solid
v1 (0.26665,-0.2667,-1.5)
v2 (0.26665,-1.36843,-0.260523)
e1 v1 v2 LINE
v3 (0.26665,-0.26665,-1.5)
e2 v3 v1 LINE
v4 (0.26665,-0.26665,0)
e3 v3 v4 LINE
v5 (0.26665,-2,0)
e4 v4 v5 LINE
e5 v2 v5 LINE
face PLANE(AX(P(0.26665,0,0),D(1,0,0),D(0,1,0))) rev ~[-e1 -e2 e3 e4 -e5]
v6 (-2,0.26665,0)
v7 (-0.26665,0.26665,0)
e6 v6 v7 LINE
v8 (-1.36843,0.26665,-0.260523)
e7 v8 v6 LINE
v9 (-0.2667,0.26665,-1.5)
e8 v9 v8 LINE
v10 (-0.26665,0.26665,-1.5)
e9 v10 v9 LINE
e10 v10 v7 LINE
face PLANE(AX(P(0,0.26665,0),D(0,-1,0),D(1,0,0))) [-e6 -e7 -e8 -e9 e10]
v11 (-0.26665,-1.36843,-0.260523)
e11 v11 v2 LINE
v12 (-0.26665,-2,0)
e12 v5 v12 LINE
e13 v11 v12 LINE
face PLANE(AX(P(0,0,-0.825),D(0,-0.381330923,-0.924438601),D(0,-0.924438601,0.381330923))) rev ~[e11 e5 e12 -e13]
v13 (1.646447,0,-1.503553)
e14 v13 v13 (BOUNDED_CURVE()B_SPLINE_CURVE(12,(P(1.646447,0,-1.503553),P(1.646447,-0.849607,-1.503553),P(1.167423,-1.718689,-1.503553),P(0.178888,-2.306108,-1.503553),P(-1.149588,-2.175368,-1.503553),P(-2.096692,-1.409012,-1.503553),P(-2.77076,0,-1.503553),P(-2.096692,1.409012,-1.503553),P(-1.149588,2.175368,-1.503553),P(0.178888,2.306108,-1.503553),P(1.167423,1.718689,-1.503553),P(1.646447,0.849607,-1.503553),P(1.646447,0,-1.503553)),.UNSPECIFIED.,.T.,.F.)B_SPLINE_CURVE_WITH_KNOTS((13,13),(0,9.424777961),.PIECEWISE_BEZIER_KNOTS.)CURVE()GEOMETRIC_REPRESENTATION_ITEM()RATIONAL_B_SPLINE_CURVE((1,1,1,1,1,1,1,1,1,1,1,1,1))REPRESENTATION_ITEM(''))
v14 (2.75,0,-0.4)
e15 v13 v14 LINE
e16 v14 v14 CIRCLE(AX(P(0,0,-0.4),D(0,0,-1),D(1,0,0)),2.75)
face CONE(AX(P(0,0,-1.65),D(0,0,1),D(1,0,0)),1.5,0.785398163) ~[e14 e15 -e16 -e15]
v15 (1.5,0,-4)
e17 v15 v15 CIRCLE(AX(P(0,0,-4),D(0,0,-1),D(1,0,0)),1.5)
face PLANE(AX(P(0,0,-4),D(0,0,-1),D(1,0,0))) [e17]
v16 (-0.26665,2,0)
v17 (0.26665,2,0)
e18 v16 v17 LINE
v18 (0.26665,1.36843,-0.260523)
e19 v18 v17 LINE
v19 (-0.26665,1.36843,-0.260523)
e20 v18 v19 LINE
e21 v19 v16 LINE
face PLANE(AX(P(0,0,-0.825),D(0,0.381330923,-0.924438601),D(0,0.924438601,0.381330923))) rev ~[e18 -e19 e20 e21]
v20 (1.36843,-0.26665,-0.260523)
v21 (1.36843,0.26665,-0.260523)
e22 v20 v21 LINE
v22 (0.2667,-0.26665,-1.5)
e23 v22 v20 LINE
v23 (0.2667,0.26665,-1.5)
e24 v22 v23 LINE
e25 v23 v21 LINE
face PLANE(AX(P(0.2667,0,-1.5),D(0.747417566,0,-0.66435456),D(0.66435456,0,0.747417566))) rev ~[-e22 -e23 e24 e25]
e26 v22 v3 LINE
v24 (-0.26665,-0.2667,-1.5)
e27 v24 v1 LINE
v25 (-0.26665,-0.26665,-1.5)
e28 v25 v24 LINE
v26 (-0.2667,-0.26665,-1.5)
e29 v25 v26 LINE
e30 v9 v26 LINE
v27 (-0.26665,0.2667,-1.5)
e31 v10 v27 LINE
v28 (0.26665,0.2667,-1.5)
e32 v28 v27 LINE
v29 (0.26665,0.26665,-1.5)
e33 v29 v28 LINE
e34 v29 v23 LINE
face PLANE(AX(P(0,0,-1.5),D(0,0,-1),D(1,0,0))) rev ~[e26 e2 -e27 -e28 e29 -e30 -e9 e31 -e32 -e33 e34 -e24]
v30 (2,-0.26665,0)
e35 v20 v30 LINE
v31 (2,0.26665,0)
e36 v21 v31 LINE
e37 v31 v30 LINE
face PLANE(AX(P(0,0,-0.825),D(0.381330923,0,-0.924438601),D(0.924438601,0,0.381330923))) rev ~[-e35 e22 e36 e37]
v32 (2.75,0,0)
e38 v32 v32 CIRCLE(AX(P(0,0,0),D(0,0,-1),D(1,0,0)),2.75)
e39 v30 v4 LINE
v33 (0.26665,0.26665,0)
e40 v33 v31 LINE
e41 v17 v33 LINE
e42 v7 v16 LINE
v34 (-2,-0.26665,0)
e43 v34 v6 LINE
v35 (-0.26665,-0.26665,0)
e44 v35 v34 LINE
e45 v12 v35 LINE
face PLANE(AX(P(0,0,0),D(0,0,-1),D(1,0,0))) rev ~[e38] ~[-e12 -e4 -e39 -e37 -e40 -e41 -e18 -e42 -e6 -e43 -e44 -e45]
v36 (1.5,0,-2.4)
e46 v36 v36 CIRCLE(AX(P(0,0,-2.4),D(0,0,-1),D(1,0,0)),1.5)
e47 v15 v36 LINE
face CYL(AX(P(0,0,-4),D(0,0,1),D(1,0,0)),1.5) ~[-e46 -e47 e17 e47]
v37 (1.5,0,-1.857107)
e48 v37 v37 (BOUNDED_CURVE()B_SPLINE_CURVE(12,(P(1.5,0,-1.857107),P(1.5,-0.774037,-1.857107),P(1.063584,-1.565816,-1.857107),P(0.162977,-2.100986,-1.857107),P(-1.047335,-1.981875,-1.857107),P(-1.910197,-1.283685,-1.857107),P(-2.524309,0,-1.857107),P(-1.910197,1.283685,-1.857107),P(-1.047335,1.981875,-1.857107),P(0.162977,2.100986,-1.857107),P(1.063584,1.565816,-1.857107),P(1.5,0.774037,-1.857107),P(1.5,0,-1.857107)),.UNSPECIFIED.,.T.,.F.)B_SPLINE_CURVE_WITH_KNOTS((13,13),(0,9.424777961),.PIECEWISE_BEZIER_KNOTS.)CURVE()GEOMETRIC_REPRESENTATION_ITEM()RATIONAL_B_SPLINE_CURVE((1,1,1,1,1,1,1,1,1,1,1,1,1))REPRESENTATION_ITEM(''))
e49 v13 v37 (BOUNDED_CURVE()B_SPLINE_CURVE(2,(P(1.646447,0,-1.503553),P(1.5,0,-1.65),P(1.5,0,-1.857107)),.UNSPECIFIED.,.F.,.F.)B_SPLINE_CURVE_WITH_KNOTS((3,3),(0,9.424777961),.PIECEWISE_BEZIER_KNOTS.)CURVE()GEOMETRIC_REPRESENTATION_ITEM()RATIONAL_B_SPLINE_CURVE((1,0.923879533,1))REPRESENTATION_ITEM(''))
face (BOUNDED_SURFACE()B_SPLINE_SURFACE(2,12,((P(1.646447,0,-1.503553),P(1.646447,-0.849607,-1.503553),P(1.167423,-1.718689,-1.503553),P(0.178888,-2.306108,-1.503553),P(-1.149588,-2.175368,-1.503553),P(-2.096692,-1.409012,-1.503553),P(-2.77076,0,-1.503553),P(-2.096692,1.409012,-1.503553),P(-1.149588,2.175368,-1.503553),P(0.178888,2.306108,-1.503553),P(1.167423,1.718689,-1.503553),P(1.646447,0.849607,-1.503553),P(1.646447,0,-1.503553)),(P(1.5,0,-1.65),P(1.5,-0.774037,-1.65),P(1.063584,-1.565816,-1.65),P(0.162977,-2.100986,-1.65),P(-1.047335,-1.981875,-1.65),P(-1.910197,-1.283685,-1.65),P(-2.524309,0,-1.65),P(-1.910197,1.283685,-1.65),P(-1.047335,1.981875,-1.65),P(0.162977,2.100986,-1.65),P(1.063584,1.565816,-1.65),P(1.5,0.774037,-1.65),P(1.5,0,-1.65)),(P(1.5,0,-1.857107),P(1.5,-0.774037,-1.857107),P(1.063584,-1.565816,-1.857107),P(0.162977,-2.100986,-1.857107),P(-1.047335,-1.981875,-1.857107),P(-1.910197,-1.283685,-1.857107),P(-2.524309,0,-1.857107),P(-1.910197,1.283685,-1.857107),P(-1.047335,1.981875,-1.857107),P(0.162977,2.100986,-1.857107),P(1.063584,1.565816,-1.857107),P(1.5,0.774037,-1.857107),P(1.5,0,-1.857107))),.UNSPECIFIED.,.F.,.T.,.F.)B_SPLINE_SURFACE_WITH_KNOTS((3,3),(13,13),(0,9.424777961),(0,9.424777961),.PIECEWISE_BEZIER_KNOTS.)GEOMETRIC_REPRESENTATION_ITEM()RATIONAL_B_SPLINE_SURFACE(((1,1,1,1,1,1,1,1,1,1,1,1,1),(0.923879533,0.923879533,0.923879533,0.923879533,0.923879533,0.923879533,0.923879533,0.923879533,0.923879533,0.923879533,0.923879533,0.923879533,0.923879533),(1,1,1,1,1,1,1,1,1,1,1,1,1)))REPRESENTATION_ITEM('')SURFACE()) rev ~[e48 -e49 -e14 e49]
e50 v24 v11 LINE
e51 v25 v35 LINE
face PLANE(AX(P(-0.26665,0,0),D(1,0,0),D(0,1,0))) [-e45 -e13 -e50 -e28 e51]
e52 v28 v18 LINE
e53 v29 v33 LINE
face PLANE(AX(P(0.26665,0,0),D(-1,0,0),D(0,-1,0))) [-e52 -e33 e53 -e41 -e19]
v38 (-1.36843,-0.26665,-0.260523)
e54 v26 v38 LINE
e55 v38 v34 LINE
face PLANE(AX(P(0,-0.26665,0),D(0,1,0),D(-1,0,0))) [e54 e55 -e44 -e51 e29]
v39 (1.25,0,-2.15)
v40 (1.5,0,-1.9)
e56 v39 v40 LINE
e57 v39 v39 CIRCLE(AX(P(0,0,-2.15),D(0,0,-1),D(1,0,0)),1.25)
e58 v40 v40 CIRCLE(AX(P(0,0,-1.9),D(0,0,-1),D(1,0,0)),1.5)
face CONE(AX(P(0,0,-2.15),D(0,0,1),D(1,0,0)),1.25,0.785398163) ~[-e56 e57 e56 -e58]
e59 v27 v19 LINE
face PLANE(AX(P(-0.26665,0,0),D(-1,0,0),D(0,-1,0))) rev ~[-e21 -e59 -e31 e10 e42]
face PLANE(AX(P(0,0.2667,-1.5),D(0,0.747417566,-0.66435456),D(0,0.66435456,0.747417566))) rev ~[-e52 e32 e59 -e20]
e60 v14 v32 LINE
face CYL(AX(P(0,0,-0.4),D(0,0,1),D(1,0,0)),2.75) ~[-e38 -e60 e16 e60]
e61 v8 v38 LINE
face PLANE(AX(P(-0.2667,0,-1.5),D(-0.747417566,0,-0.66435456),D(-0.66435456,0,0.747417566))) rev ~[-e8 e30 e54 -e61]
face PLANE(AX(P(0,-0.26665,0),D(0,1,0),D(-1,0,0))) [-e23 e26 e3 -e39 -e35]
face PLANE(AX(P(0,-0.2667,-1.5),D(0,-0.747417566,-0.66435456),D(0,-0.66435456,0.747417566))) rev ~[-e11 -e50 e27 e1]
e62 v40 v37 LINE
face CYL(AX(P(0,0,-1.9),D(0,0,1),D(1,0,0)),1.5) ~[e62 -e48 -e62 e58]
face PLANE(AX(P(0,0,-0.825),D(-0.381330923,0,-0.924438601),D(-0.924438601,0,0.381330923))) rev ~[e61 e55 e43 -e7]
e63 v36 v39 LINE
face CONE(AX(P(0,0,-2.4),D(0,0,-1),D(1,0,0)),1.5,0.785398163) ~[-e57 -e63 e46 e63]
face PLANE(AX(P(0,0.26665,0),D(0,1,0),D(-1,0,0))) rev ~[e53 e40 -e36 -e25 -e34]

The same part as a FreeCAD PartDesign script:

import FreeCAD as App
import Part
import Sketcher

V = App.Vector
Q = App.Units.Quantity


def edges_at(feature, points):
    """Names of the edges that pass closest to the given points."""
    edges = feature.Shape.Edges
    near = lambda p: min(range(len(edges)), key=lambda i: edges[i].distToShape(Part.Vertex(*p))[0])
    return sorted({f"Edge{near(p) + 1}" for p in points})


def add_polygon(sketch, points):
    """Adds a closed chain of lines whose ends are joined by coincident constraints."""
    first, n = sketch.GeometryCount, len(points)
    for a, b in zip(points, points[1:] + points[:1]):
        sketch.addGeometry(Part.LineSegment(App.Vector(*a, 0), App.Vector(*b, 0)), False)
    for i in range(n):
        sketch.addConstraint(Sketcher.Constraint("Coincident", first + i, 2, first + (i + 1) % n, 1))

doc = App.newDocument("Part")
params = doc.addObject("Spreadsheet::Sheet", "Params")
for row, (alias, value) in enumerate([
    ("sketch1_height", "4 mm"),
    ("sketch1_width", "1.5 mm"),
    ("sketch1_width2", "2.75 mm"),
    ("sketch1_height2", "0.25 mm"),
    ("revolution_angle", "360 deg"),
    ("sketch2_width", "1.6 mm"),
    ("sketch2_height", "1.5 mm"),
    ("pocket1_length", "0.5333 mm"),
    ("sketch3_width", "2 mm"),
    ("pocket2_length", "0.5333 mm"),
    ("fillet_radius", "0.5 mm"),
], start=1):
    params.set(f"A{row}", alias)
    params.set(f"B{row}", "=" + value)
    params.setAlias(f"B{row}", alias)

body = doc.addObject("PartDesign::Body", "Body")

# Sketch on XZ plane
sketch1 = body.newObject("Sketcher::SketchObject", "Sketch")
sketch1.AttachmentSupport = (doc.getObject("XZ_Plane"), [""])
sketch1.MapMode = "FlatFace"
add_polygon(sketch1, [(0, 0), (2.75, 0), (2.75, -0.4), (1.5, -1.65), (1.5, -1.9), (1.25, -2.15), (1.5, -2.4), (1.5, -4), (0, -4)])  # lines 0-8
sketch1.addConstraint(Sketcher.Constraint("Horizontal", 0))
sketch1.addConstraint(Sketcher.Constraint("Vertical", 1))
sketch1.addConstraint(Sketcher.Constraint("Vertical", 3))
sketch1.addConstraint(Sketcher.Constraint("Vertical", 6))
sketch1.addConstraint(Sketcher.Constraint("Horizontal", 7))
sketch1.addConstraint(Sketcher.Constraint("Vertical", 8))
sketch1.addConstraint(Sketcher.Constraint("Coincident", 8, 2, -1, 1))
sketch1.addConstraint(Sketcher.Constraint("Parallel", 2, 4))
sketch1.addConstraint(Sketcher.Constraint("Perpendicular", 4, 5))
sketch1.addConstraint(Sketcher.Constraint("Vertical", 3, 2, 5, 2))
sketch1.addConstraint(Sketcher.Constraint("Equal", 4, 5))
sketch1.addConstraint(Sketcher.Constraint("DistanceY", 8, 1, 8, 2, Q("4 mm")))
sketch1.addConstraint(Sketcher.Constraint("DistanceX", 7, 2, 7, 1, Q("1.5 mm")))
sketch1.addConstraint(Sketcher.Constraint("DistanceX", 0, 1, 0, 2, Q("2.75 mm")))
sketch1.addConstraint(Sketcher.Constraint("DistanceY", 3, 2, 3, 1, Q("0.25 mm")))
sketch1.addConstraint(Sketcher.Constraint("DistanceX", 4, 2, 1, 2, Q("1.5 mm")))
sketch1.addConstraint(Sketcher.Constraint("DistanceY", 2, 2, -1, 1, Q("1.65 mm")))
sketch1.setExpression("Constraints[20]", "Params.sketch1_height")
sketch1.setExpression("Constraints[21]", "Params.sketch1_width")
sketch1.setExpression("Constraints[22]", "Params.sketch1_width2")
sketch1.setExpression("Constraints[23]", "Params.sketch1_height2")
revolution = body.newObject("PartDesign::Revolution", "Revolution")
revolution.Profile = sketch1
revolution.ReferenceAxis = (sketch1, ["V_Axis"])
revolution.setExpression("Angle", "Params.revolution_angle")

# Sketch on XZ plane
sketch2 = body.newObject("Sketcher::SketchObject", "Sketch001")
sketch2.AttachmentSupport = (doc.getObject("XZ_Plane"), [""])
sketch2.MapMode = "FlatFace"
add_polygon(sketch2, [(0, 0), (1.6, 0), (0.2667, -1.5), (0, -1.5)])  # lines 0-3
sketch2.addConstraint(Sketcher.Constraint("Horizontal", 0))
sketch2.addConstraint(Sketcher.Constraint("Horizontal", 2))
sketch2.addConstraint(Sketcher.Constraint("Vertical", 3))
sketch2.addConstraint(Sketcher.Constraint("Coincident", 3, 2, -1, 1))
sketch2.addConstraint(Sketcher.Constraint("DistanceX", 0, 1, 0, 2, Q("1.6 mm")))
sketch2.addConstraint(Sketcher.Constraint("DistanceY", 3, 1, 3, 2, Q("1.5 mm")))
sketch2.addConstraint(Sketcher.Constraint("DistanceX", 2, 2, 2, 1, Q("0.2667 mm")))
sketch2.setExpression("Constraints[8]", "Params.sketch2_width")
sketch2.setExpression("Constraints[9]", "Params.sketch2_height")
pocket1 = body.newObject("PartDesign::Pocket", "Pocket")
pocket1.Profile = sketch2
pocket1.setExpression("Length", "Params.pocket1_length")
pocket1.Midplane = True
doc.recompute()

polarpattern = body.newObject("PartDesign::PolarPattern", "PolarPattern")
polarpattern.Originals = [pocket1]
polarpattern.Axis = (doc.getObject("Z_Axis"), [""])
polarpattern.Angle = 360
polarpattern.Occurrences = 4
body.Tip = polarpattern

# Sketch on XZ plane
sketch3 = body.newObject("Sketcher::SketchObject", "Sketch002")
sketch3.AttachmentSupport = (doc.getObject("XZ_Plane"), [""])
sketch3.MapMode = "FlatFace"
add_polygon(sketch3, [(2, 0), (0, -0.825), (0, 0)])  # lines 0-2
sketch3.addConstraint(Sketcher.Constraint("Vertical", 1))
sketch3.addConstraint(Sketcher.Constraint("Horizontal", 2))
sketch3.addConstraint(Sketcher.Constraint("Coincident", 1, 2, -1, 1))
sketch3.addConstraint(Sketcher.Constraint("DistanceX", 2, 1, 2, 2, Q("2 mm")))
sketch3.addConstraint(Sketcher.Constraint("DistanceY", 1, 1, 1, 2, Q("0.825 mm")))
sketch3.setExpression("Constraints[6]", "Params.sketch3_width")
pocket2 = body.newObject("PartDesign::Pocket", "Pocket001")
pocket2.Profile = sketch3
pocket2.setExpression("Length", "Params.pocket2_length")
pocket2.Midplane = True
doc.recompute()

polarpattern2 = body.newObject("PartDesign::PolarPattern", "PolarPattern001")
polarpattern2.Originals = [pocket2]
polarpattern2.Axis = (doc.getObject("Z_Axis"), [""])
polarpattern2.Angle = 360
polarpattern2.Occurrences = 4
body.Tip = polarpattern2
doc.recompute()

fillet = body.newObject("PartDesign::Fillet", "Fillet")
fillet.Base = (polarpattern2, edges_at(polarpattern2, [(-1.5, 0, -1.65)]))
fillet.setExpression("Radius", "Params.fillet_radius")

doc.recompute()
